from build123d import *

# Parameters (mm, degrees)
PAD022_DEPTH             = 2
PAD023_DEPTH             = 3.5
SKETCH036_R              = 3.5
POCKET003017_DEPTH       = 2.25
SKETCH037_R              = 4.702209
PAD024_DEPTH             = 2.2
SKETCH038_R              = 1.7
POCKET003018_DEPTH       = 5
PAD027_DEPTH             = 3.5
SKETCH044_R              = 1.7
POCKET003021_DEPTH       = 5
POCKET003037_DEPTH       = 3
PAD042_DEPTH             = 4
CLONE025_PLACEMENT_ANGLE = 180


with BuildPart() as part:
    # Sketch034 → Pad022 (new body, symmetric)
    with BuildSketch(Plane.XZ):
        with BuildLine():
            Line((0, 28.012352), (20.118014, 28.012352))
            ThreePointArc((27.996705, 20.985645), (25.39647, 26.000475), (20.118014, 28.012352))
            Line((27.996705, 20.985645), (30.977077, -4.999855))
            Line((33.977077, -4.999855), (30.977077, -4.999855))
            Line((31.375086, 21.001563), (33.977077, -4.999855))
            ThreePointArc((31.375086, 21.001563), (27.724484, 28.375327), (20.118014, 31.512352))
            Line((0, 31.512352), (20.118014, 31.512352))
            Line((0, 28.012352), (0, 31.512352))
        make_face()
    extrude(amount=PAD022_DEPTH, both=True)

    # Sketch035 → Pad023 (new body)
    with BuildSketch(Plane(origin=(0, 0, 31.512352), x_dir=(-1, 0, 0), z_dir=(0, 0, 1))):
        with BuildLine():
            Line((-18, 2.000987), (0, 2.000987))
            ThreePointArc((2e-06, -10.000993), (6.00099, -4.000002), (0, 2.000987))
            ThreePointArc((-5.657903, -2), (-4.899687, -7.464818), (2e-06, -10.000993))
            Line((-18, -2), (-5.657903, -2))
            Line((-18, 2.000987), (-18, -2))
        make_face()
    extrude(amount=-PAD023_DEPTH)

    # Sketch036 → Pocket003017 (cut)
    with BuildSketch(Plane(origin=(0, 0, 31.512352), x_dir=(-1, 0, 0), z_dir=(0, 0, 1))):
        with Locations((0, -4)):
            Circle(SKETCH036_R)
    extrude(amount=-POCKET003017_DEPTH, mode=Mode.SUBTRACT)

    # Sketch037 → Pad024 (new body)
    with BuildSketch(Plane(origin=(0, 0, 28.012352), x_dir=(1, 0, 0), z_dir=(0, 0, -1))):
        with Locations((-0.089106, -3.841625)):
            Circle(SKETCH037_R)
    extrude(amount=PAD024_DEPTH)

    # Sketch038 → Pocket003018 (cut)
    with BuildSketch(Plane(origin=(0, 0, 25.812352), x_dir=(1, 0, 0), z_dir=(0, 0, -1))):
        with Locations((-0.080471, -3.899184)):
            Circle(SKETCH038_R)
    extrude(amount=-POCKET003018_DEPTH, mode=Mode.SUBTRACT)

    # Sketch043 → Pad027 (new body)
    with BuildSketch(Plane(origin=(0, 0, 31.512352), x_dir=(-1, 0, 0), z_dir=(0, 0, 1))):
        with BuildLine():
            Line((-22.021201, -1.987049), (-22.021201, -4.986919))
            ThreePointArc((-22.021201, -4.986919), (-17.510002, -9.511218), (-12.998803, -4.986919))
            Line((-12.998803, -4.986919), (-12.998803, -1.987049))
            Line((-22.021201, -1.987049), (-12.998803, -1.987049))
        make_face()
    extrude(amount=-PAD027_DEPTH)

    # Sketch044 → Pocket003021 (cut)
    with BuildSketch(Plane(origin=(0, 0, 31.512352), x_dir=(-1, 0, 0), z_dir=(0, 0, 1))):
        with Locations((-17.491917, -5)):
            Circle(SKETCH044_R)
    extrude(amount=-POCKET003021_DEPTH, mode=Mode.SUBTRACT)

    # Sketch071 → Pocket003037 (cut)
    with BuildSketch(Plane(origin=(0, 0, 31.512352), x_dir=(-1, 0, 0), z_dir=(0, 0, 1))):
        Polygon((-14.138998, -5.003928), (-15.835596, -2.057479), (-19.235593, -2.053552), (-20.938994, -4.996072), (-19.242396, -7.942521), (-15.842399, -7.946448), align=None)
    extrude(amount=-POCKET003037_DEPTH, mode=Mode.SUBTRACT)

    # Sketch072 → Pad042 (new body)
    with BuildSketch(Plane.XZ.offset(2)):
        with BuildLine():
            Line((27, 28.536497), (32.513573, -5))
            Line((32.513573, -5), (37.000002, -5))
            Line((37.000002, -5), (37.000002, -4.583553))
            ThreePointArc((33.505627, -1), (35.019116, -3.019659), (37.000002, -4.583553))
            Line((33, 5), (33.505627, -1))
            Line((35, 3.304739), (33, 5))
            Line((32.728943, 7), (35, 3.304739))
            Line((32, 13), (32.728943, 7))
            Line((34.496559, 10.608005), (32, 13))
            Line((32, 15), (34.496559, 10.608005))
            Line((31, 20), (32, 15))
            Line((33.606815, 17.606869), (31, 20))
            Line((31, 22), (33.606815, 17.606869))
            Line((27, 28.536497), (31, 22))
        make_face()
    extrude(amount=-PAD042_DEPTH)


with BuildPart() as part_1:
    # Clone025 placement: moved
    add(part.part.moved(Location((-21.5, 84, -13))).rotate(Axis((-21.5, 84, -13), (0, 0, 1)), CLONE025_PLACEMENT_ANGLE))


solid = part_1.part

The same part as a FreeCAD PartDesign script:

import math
import FreeCAD as App
import Part
import Sketcher
from FreeCAD import Vector
Q = App.Units.Quantity

doc = App.newDocument("Part")
params = doc.addObject("Spreadsheet::Sheet", "Params")
for row, (alias, value) in enumerate([
    ("sketch1_width", "3 mm"),
    ("sketch1_height", "3.5 mm"),
    ("pad1_length", "4 mm"),
    ("sketch2_width", "18 mm"),
    ("pad2_length", "3.5 mm"),
    ("sketch3_diameter", "7 mm"),
    ("pocket1_length", "2.25 mm"),
    ("pad3_length", "2.2 mm"),
    ("sketch5_diameter", "3.4 mm"),
    ("pocket2_length", "5 mm"),
    ("pad4_length", "3.5 mm"),
    ("sketch7_diameter", "3.4 mm"),
    ("pocket3_length", "5 mm"),
    ("sketch8_length", "3.400001 mm"),
    ("pocket4_length", "3 mm"),
    ("pad5_length", "4 mm"),
], start=1):
    params.set(f"A{row}", alias)
    params.set(f"B{row}", "=" + value)
    params.setAlias(f"B{row}", alias)

body = doc.addObject("PartDesign::Body", "Body")

# Sketch on XZ plane
sketch1 = body.newObject("Sketcher::SketchObject", "Sketch")
sketch1.AttachmentSupport = (doc.getObject("XZ_Plane"), [""])
sketch1.MapMode = "FlatFace"
sketch1.addGeometry([
    Part.LineSegment(Vector(0, 28, 0), Vector(20.1, 28, 0)),  # 0
    Part.ArcOfCircle(Part.Circle(Vector(20.1, 20.1, 0), Vector(0, 0, 1), 7.9), math.radians(7), math.radians(90)),  # 1
    Part.LineSegment(Vector(28, 21, 0), Vector(31, -5, 0)),  # 2
    Part.LineSegment(Vector(31, -5, 0), Vector(34, -5, 0)),  # 3
    Part.LineSegment(Vector(34, -5, 0), Vector(31.4, 21, 0)),  # 4
    Part.ArcOfCircle(Part.Circle(Vector(19.8, 19.8, 0), Vector(0, 0, 1), 11.7), math.radians(6), math.radians(88)),  # 5
    Part.LineSegment(Vector(20.1, 31.5, 0), Vector(0, 31.5, 0)),  # 6
    Part.LineSegment(Vector(0, 31.5, 0), Vector(0, 28, 0)),  # 7
], False)
sketch1.addConstraint([
    Sketcher.Constraint("Tangent", 0, 2, 1, 2),
    Sketcher.Constraint("Tangent", 1, 1, 2, 1),
    Sketcher.Constraint("Coincident", 2, 2, 3, 1),
    Sketcher.Constraint("Coincident", 3, 2, 4, 1),
    Sketcher.Constraint("Tangent", 4, 2, 5, 1),
    Sketcher.Constraint("Coincident", 5, 2, 6, 1),
    Sketcher.Constraint("Coincident", 6, 2, 7, 1),
    Sketcher.Constraint("Coincident", 7, 2, 0, 1),
    Sketcher.Constraint("Horizontal", 0),
    Sketcher.Constraint("Horizontal", 3),
    Sketcher.Constraint("Horizontal", 6),
    Sketcher.Constraint("Vertical", 7),
    Sketcher.Constraint("PointOnObject", 6, 2, -2),
    Sketcher.Constraint("Vertical", 0, 2, 5, 2),
    Sketcher.Constraint("DistanceX", 3, 1, 3, 2, Q("3 mm")),
    Sketcher.Constraint("DistanceY", 7, 2, 7, 1, Q("3.5 mm")),
    Sketcher.Constraint("Radius", 5, Q("11.679439 mm")),
    Sketcher.Constraint("Radius", 1, Q("7.930342 mm")),
    Sketcher.Constraint("DistanceY", 2, 2, 1, 1, Q("25.9855 mm")),
    Sketcher.Constraint("DistanceX", 0, 1, 0, 2, Q("20.118014 mm")),
    Sketcher.Constraint("DistanceY", -1, 1, 1, 3, Q("20.08201 mm")),
    Sketcher.Constraint("DistanceX", -1, 1, 5, 3, Q("19.753692 mm")),
    Sketcher.Constraint("DistanceX", 1, 3, 1, 1, Q("7.878691 mm")),
])
sketch1.setExpression("Constraints[14]", "Params.sketch1_width")
sketch1.setExpression("Constraints[15]", "Params.sketch1_height")
pad1 = body.newObject("PartDesign::Pad", "Pad")
pad1.Profile = sketch1
pad1.setExpression("Length", "Params.pad1_length")
pad1.Midplane = True

# Sketch on XY plane
sketch2 = body.newObject("Sketcher::SketchObject", "Sketch001")
sketch2.AttachmentSupport = (doc.getObject("XY_Plane"), [""])
sketch2.MapMode = "FlatFace"
sketch2.AttachmentOffset = App.Placement(Vector(0, 0, 31.512352), App.Rotation())
sketch2.addGeometry([
    Part.LineSegment(Vector(0, -2, 0), Vector(18, -2, 0)),  # 0
    Part.LineSegment(Vector(18, -2, 0), Vector(18, 2, 0)),  # 1
    Part.LineSegment(Vector(18, 2, 0), Vector(5.7, 2, 0)),  # 2
    Part.ArcOfCircle(Part.Circle(Vector(0, 4, 0), Vector(0, 0, 1), 6), math.radians(-19), math.radians(90)),  # 3
    Part.ArcOfCircle(Part.Circle(Vector(0, 4, 0), Vector(0, 0, 1), 6), math.radians(90), math.radians(270)),  # 4
], False)
sketch2.addConstraint([
    Sketcher.Constraint("Coincident", 0, 2, 1, 1),
    Sketcher.Constraint("Coincident", 1, 2, 2, 1),
    Sketcher.Constraint("Coincident", 2, 2, 3, 1),
    Sketcher.Constraint("Tangent", 3, 2, 4, 1),
    Sketcher.Constraint("Tangent", 4, 2, 0, 1),
    Sketcher.Constraint("Horizontal", 0),
    Sketcher.Constraint("Vertical", 1),
    Sketcher.Constraint("Horizontal", 2),
    Sketcher.Constraint("Equal", 3, 4),
    Sketcher.Constraint("PointOnObject", 3, 3, -2),
    Sketcher.Constraint("PointOnObject", 3, 2, -2),
    Sketcher.Constraint("DistanceX", 0, 1, 0, 2, Q("18 mm")),
    Sketcher.Constraint("DistanceY", -1, 1, 1, 2, Q("2 mm")),
    Sketcher.Constraint("Radius", 3, Q("6.00099 mm")),
    Sketcher.Constraint("DistanceX", 2, 2, 2, 1, Q("12.342097 mm")),
])
sketch2.setExpression("Constraints[11]", "Params.sketch2_width")
pad2 = body.newObject("PartDesign::Pad", "Pad001")
pad2.Profile = sketch2
pad2.setExpression("Length", "Params.pad2_length")
pad2.Reversed = True

# Sketch on XY plane
sketch3 = body.newObject("Sketcher::SketchObject", "Sketch002")
sketch3.AttachmentSupport = (doc.getObject("XY_Plane"), [""])
sketch3.MapMode = "FlatFace"
sketch3.AttachmentOffset = App.Placement(Vector(0, 0, 31.512352), App.Rotation())
sketch3.addGeometry(Part.Circle(Vector(0, 4, 0), Vector(0, 0, 1), 3.5), False)
sketch3.addConstraint([
    Sketcher.Constraint("PointOnObject", 0, 3, -2),
    Sketcher.Constraint("Diameter", 0, Q("7 mm")),
    Sketcher.Constraint("DistanceY", -1, 1, 0, 3, Q("4 mm")),
])
sketch3.setExpression("Constraints[1]", "Params.sketch3_diameter")
pocket1 = body.newObject("PartDesign::Pocket", "Pocket")
pocket1.Profile = sketch3
pocket1.setExpression("Length", "Params.pocket1_length")

# Sketch on XY plane
sketch4 = body.newObject("Sketcher::SketchObject", "Sketch003")
sketch4.AttachmentSupport = (doc.getObject("XY_Plane"), [""])
sketch4.MapMode = "FlatFace"
sketch4.AttachmentOffset = App.Placement(Vector(0, 0, 28.012352), App.Rotation())
sketch4.addGeometry(Part.Circle(Vector(-0.1, 3.8, 0), Vector(0, 0, 1), 4.7), False)
sketch4.addConstraint([
    Sketcher.Constraint("Diameter", 0, Q("9.404418 mm")),
    Sketcher.Constraint("DistanceX", 0, 3, -1, 1, Q("0.089106 mm")),
    Sketcher.Constraint("DistanceY", -1, 1, 0, 3, Q("3.841625 mm")),
])
pad3 = body.newObject("PartDesign::Pad", "Pad002")
pad3.Profile = sketch4
pad3.setExpression("Length", "Params.pad3_length")
pad3.Reversed = True

# Sketch on XY plane
sketch5 = body.newObject("Sketcher::SketchObject", "Sketch004")
sketch5.AttachmentSupport = (doc.getObject("XY_Plane"), [""])
sketch5.MapMode = "FlatFace"
sketch5.AttachmentOffset = App.Placement(Vector(0, 0, 25.812352), App.Rotation())
sketch5.addGeometry(Part.Circle(Vector(-0.1, 3.9, 0), Vector(0, 0, 1), 1.7), False)
sketch5.addConstraint([
    Sketcher.Constraint("Diameter", 0, Q("3.4 mm")),
    Sketcher.Constraint("DistanceX", 0, 3, -1, 1, Q("0.080471 mm")),
    Sketcher.Constraint("DistanceY", -1, 1, 0, 3, Q("3.899184 mm")),
])
sketch5.setExpression("Constraints[0]", "Params.sketch5_diameter")
pocket2 = body.newObject("PartDesign::Pocket", "Pocket001")
pocket2.Profile = sketch5
pocket2.setExpression("Length", "Params.pocket2_length")
pocket2.Reversed = True

# Sketch on XY plane
sketch6 = body.newObject("Sketcher::SketchObject", "Sketch005")
sketch6.AttachmentSupport = (doc.getObject("XY_Plane"), [""])
sketch6.MapMode = "FlatFace"
sketch6.AttachmentOffset = App.Placement(Vector(0, 0, 31.512352), App.Rotation())
sketch6.addGeometry([
    Part.LineSegment(Vector(22.021201, 1.987049, 0), Vector(22.021201, 4.986919, 0)),
    Part.ArcOfCircle(Part.Circle(Vector(17.510002, 5, 0), Vector(0, 0, 1), 4.511218), math.radians(-0.166139), math.radians(180.166139)),
    Part.LineSegment(Vector(12.998803, 4.986919, 0), Vector(12.998803, 1.987049, 0)),
    Part.LineSegment(Vector(12.998803, 1.987049, 0), Vector(22.021201, 1.987049, 0)),
], False)
sketch6.addConstraint([
    Sketcher.Constraint("Coincident", 0, 2, 1, 1),
    Sketcher.Constraint("Coincident", 1, 2, 2, 1),
    Sketcher.Constraint("Coincident", 2, 2, 3, 1),
    Sketcher.Constraint("Coincident", 3, 2, 0, 1),
    Sketcher.Constraint("Vertical", 0),
    Sketcher.Constraint("Vertical", 2),
    Sketcher.Constraint("Horizontal", 3),
    Sketcher.Constraint("Horizontal", 0, 2, 1, 2),
    Sketcher.Constraint("DistanceY", -1, 1, 1, 3, Q("5 mm")),
    Sketcher.Constraint("DistanceX", -1, 1, 1, 3, Q("17.510002 mm")),
    Sketcher.Constraint("DistanceX", 3, 1, 3, 2, Q("9.022398 mm")),
    Sketcher.Constraint("Radius", 1, Q("4.511218 mm")),
    Sketcher.Constraint("DistanceY", 0, 1, 0, 2, Q("2.99987 mm")),
])
pad4 = body.newObject("PartDesign::Pad", "Pad003")
pad4.Profile = sketch6
pad4.setExpression("Length", "Params.pad4_length")
pad4.Reversed = True

# Sketch on XY plane
sketch7 = body.newObject("Sketcher::SketchObject", "Sketch006")
sketch7.AttachmentSupport = (doc.getObject("XY_Plane"), [""])
sketch7.MapMode = "FlatFace"
sketch7.AttachmentOffset = App.Placement(Vector(0, 0, 31.512352), App.Rotation())
sketch7.addGeometry(Part.Circle(Vector(17.5, 5, 0), Vector(0, 0, 1), 1.7), False)
sketch7.addConstraint([
    Sketcher.Constraint("Diameter", 0, Q("3.4 mm")),
    Sketcher.Constraint("DistanceY", -1, 1, 0, 3, Q("5 mm")),
    Sketcher.Constraint("DistanceX", -1, 1, 0, 3, Q("17.491917 mm")),
])
sketch7.setExpression("Constraints[0]", "Params.sketch7_diameter")
pocket3 = body.newObject("PartDesign::Pocket", "Pocket002")
pocket3.Profile = sketch7
pocket3.setExpression("Length", "Params.pocket3_length")

# Sketch on XY plane
sketch8 = body.newObject("Sketcher::SketchObject", "Sketch007")
sketch8.AttachmentSupport = (doc.getObject("XY_Plane"), [""])
sketch8.MapMode = "FlatFace"
sketch8.AttachmentOffset = App.Placement(Vector(0, 0, 31.512352), App.Rotation())
sketch8.addGeometry([
    Part.LineSegment(Vector(14.1, 5, 0), Vector(15.8, 2.1, 0)),  # 0
    Part.LineSegment(Vector(15.8, 2.1, 0), Vector(19.2, 2.1, 0)),  # 1
    Part.LineSegment(Vector(19.2, 2.1, 0), Vector(20.9, 5, 0)),  # 2
    Part.LineSegment(Vector(20.9, 5, 0), Vector(19.2, 7.9, 0)),  # 3
    Part.LineSegment(Vector(19.2, 7.9, 0), Vector(15.8, 7.9, 0)),  # 4
    Part.LineSegment(Vector(15.8, 7.9, 0), Vector(14.1, 5, 0)),  # 5
], False)
sketch8.addConstraint([
    Sketcher.Constraint("Coincident", 0, 2, 1, 1),
    Sketcher.Constraint("Coincident", 1, 2, 2, 1),
    Sketcher.Constraint("Coincident", 2, 2, 3, 1),
    Sketcher.Constraint("Coincident", 3, 2, 4, 1),
    Sketcher.Constraint("Coincident", 4, 2, 5, 1),
    Sketcher.Constraint("Coincident", 5, 2, 0, 1),
    Sketcher.Constraint("Parallel", 0, 3),
    Sketcher.Constraint("Parallel", 1, 4),
    Sketcher.Constraint("Parallel", 2, 5),
    Sketcher.Constraint("Equal", 0, 1),
    Sketcher.Constraint("Equal", 1, 2),
    Sketcher.Constraint("Equal", 2, 3),
    Sketcher.Constraint("Distance", 0, Q("3.400001 mm")),
    Sketcher.Constraint("DistanceX", -1, 1, 5, 2, Q("14.138998 mm")),
    Sketcher.Constraint("DistanceX", -1, 1, 4, 2, Q("15.842399 mm")),
    Sketcher.Constraint("DistanceX", 3, 2, 2, 2, Q("1.696598 mm")),
    Sketcher.Constraint("DistanceY", -1, 1, 0, 2, Q("2.057479 mm")),
    Sketcher.Constraint("DistanceY", -1, 1, 1, 2, Q("2.053552 mm")),
])
sketch8.setExpression("Constraints[12]", "Params.sketch8_length")
pocket4 = body.newObject("PartDesign::Pocket", "Pocket003")
pocket4.Profile = sketch8
pocket4.setExpression("Length", "Params.pocket4_length")

# Sketch on XZ plane
sketch9 = body.newObject("Sketcher::SketchObject", "Sketch008")
sketch9.AttachmentSupport = (doc.getObject("XZ_Plane"), [""])
sketch9.MapMode = "FlatFace"
sketch9.AttachmentOffset = App.Placement(Vector(0, 0, 2), App.Rotation())
sketch9.addGeometry([
    Part.LineSegment(Vector(27, 28.54, 0), Vector(32.51, -5, 0)),  # 0
    Part.LineSegment(Vector(32.51, -5, 0), Vector(37, -5, 0)),  # 1
    Part.LineSegment(Vector(37, -5, 0), Vector(37, -4.58, 0)),  # 2
    Part.ArcOfCircle(Part.Circle(Vector(42, 3.79, 0), Vector(0, 0, 1), 9.76), math.radians(-151), math.radians(-121)),  # 3
    Part.LineSegment(Vector(33.51, -1, 0), Vector(33, 5, 0)),  # 4
    Part.LineSegment(Vector(33, 5, 0), Vector(35, 3.3, 0)),  # 5
    Part.LineSegment(Vector(35, 3.3, 0), Vector(32.73, 7, 0)),  # 6
    Part.LineSegment(Vector(32.73, 7, 0), Vector(32, 13, 0)),  # 7
    Part.LineSegment(Vector(32, 13, 0), Vector(34.5, 10.61, 0)),  # 8
    Part.LineSegment(Vector(34.5, 10.61, 0), Vector(32, 15, 0)),  # 9
    Part.LineSegment(Vector(32, 15, 0), Vector(31, 20, 0)),  # 10
    Part.LineSegment(Vector(31, 20, 0), Vector(33.61, 17.61, 0)),  # 11
    Part.LineSegment(Vector(33.61, 17.61, 0), Vector(31, 22, 0)),  # 12
    Part.LineSegment(Vector(31, 22, 0), Vector(27, 28.54, 0)),  # 13
], False)
sketch9.addConstraint([
    Sketcher.Constraint("Coincident", 0, 2, 1, 1),
    Sketcher.Constraint("Coincident", 1, 2, 2, 1),
    Sketcher.Constraint("Coincident", 2, 2, 3, 2),
    Sketcher.Constraint("Coincident", 3, 1, 4, 1),
    Sketcher.Constraint("Coincident", 4, 2, 5, 1),
    Sketcher.Constraint("Coincident", 5, 2, 6, 1),
    Sketcher.Constraint("Coincident", 6, 2, 7, 1),
    Sketcher.Constraint("Coincident", 7, 2, 8, 1),
    Sketcher.Constraint("Coincident", 8, 2, 9, 1),
    Sketcher.Constraint("Coincident", 9, 2, 10, 1),
    Sketcher.Constraint("Coincident", 10, 2, 11, 1),
    Sketcher.Constraint("Coincident", 11, 2, 12, 1),
    Sketcher.Constraint("Coincident", 12, 2, 13, 1),
    Sketcher.Constraint("Coincident", 13, 2, 0, 1),
    Sketcher.Constraint("Horizontal", 1),
    Sketcher.Constraint("Vertical", 2),
    Sketcher.Constraint("Vertical", 7, 2, 9, 2),
    Sketcher.Constraint("Vertical", 10, 2, 12, 2),
    Sketcher.Constraint("DistanceY", 0, 2, -1, 1, Q("5 mm")),
    Sketcher.Constraint("DistanceY", 3, 1, -1, 1, Q("1 mm")),
    Sketcher.Constraint("DistanceX", -1, 1, 4, 2, Q("33 mm")),
    Sketcher.Constraint("DistanceY", -1, 1, 4, 2, Q("5 mm")),
    Sketcher.Constraint("DistanceX", -1, 1, 5, 2, Q("35 mm")),
    Sketcher.Constraint("DistanceY", -1, 1, 6, 2, Q("7 mm")),
    Sketcher.Constraint("DistanceX", -1, 1, 7, 2, Q("32 mm")),
    Sketcher.Constraint("DistanceY", -1, 1, 7, 2, Q("13 mm")),
    Sketcher.Constraint("DistanceY", -1, 1, 9, 2, Q("15 mm")),
    Sketcher.Constraint("DistanceX", -1, 1, 10, 2, Q("31 mm")),
    Sketcher.Constraint("DistanceY", -1, 1, 10, 2, Q("20 mm")),
    Sketcher.Constraint("DistanceY", -1, 1, 12, 2, Q("22 mm")),
    Sketcher.Constraint("DistanceX", -1, 1, 13, 2, Q("27 mm")),
    Sketcher.Constraint("Radius", 3, Q("9.757077 mm")),
    Sketcher.Constraint("DistanceX", 1, 1, 1, 2, Q("4.486429 mm")),
    Sketcher.Constraint("Distance", 8, Q("3.45752 mm")),
    Sketcher.Constraint("DistanceY", 2, 1, 2, 2, Q("0.416447 mm")),
    Sketcher.Constraint("DistanceY", -1, 1, 5, 2, Q("3.304739 mm")),
    Sketcher.Constraint("DistanceX", -1, 1, 8, 2, Q("34.496559 mm")),
    Sketcher.Constraint("DistanceY", -1, 1, 11, 2, Q("17.606869 mm")),
    Sketcher.Constraint("DistanceX", 0, 2, 3, 3, Q("9.491211 mm")),
    Sketcher.Constraint("DistanceX", 6, 2, 3, 3, Q("9.275841 mm")),
    Sketcher.Constraint("DistanceX", 6, 2, 11, 2, Q("0.877872 mm")),
    Sketcher.Constraint("DistanceY", 11, 2, 13, 2, Q("10.929628 mm")),
    Sketcher.Constraint("Distance", 0, Q("33.986705 mm")),
])
pad5 = body.newObject("PartDesign::Pad", "Pad004")
pad5.Profile = sketch9
pad5.setExpression("Length", "Params.pad5_length")
pad5.Reversed = True
body2 = doc.addObject("PartDesign::Body", "Body001")
doc.recompute()

body.Placement = App.Placement(Vector(-21.5, 84, -13), App.Rotation(Vector(0, 0, 1), 180))
boolean = body2.newObject("PartDesign::Boolean", "Boolean")
boolean.Type = "Fuse"
boolean.addObjects([body])

doc.recompute()
